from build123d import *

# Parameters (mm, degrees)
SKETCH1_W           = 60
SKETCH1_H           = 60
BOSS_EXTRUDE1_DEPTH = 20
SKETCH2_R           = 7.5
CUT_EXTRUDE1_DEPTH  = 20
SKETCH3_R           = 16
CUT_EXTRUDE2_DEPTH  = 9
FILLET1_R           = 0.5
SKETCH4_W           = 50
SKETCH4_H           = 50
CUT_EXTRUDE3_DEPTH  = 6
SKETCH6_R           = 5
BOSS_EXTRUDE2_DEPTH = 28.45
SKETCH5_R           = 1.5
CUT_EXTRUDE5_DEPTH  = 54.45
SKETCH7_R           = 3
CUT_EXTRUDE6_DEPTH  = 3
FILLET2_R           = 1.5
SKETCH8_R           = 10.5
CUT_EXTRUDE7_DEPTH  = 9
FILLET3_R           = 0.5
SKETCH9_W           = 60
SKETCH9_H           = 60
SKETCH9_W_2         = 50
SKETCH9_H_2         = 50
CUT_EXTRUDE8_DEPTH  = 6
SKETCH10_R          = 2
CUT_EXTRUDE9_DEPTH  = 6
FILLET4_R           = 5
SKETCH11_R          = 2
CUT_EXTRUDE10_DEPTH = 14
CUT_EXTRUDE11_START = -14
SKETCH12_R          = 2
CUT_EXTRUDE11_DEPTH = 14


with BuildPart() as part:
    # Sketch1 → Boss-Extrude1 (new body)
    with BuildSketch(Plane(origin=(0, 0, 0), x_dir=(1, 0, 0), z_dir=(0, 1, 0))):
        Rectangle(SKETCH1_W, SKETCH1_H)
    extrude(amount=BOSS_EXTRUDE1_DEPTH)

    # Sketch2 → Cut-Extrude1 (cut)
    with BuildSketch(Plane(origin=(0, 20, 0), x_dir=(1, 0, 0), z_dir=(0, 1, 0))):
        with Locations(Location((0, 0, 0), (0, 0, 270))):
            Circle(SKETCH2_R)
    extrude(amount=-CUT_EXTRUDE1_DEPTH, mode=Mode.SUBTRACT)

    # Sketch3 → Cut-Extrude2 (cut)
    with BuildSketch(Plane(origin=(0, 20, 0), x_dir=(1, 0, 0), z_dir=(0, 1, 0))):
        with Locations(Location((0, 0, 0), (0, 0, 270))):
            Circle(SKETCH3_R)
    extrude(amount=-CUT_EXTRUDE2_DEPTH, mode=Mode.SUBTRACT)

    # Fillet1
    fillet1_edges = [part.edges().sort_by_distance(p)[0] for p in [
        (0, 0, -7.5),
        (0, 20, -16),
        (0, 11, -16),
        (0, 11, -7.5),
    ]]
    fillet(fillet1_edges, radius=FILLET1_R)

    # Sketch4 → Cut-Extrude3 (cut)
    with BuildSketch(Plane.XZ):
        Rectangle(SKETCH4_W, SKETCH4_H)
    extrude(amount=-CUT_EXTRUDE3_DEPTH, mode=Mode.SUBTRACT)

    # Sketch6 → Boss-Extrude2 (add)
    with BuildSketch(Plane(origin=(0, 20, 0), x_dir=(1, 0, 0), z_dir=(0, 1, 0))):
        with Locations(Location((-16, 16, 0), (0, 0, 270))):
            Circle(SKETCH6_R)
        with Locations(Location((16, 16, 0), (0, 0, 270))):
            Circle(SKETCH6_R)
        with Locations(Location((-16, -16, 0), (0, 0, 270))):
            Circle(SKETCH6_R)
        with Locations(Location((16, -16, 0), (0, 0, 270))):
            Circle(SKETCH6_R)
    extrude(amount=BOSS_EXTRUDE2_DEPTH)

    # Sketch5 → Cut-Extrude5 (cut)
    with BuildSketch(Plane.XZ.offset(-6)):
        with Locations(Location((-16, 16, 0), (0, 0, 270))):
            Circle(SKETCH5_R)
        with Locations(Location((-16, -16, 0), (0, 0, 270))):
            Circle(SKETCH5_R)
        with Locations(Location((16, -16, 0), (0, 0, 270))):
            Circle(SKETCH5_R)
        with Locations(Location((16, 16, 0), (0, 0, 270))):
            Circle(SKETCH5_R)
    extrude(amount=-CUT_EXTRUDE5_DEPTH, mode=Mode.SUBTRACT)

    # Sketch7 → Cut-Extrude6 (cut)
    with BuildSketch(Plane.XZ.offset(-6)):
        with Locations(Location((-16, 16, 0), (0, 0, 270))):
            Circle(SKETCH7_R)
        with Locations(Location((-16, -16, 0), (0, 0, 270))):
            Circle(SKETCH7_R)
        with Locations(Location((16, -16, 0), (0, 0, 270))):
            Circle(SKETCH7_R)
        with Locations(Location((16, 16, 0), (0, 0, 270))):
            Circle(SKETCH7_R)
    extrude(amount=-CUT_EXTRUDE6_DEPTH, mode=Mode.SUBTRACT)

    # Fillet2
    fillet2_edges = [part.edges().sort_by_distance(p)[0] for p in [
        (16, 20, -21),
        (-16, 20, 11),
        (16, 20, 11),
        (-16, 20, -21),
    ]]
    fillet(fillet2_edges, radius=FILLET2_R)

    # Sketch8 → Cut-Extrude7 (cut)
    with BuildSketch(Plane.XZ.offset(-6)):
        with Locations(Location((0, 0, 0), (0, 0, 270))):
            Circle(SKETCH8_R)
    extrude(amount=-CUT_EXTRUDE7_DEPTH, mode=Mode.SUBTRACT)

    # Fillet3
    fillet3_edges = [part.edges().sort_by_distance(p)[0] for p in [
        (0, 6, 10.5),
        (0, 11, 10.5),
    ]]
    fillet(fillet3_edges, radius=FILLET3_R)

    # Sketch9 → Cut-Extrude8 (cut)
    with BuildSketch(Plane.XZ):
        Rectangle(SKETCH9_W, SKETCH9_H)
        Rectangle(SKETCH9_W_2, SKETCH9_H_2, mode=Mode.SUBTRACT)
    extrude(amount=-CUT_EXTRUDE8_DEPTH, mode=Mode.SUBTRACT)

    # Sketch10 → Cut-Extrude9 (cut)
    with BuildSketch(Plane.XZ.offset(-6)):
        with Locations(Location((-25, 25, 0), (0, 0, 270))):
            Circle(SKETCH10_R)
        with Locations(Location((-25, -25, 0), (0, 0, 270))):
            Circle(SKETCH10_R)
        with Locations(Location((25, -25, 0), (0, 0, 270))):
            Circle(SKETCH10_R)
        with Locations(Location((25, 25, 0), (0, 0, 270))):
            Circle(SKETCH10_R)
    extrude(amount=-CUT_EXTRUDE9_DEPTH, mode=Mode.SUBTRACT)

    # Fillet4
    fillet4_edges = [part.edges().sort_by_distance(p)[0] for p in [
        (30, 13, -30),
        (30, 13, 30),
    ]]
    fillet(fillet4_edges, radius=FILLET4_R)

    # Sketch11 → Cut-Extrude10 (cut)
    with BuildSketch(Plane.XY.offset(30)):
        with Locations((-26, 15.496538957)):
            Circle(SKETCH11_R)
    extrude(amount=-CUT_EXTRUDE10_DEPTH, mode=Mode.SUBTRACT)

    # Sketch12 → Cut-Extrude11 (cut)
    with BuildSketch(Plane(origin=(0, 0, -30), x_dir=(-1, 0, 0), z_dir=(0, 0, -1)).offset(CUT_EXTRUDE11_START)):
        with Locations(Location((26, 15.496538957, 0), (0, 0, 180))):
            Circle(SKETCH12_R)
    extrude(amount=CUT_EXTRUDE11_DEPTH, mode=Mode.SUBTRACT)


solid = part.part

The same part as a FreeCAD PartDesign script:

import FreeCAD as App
import Part
import Sketcher


def edges_at(feature, points):
    """Names of the edges that pass closest to the given points."""
    edges = feature.Shape.Edges
    near = lambda p: min(range(len(edges)), key=lambda i: edges[i].distToShape(Part.Vertex(*p))[0])
    return sorted({f"Edge{near(p) + 1}" for p in points})


def add_polygon(sketch, points):
    """Adds a closed chain of lines whose ends are joined by coincident constraints."""
    first, n = sketch.GeometryCount, len(points)
    for a, b in zip(points, points[1:] + points[:1]):
        sketch.addGeometry(Part.LineSegment(App.Vector(*a, 0), App.Vector(*b, 0)), False)
    for i in range(n):
        sketch.addConstraint(Sketcher.Constraint("Coincident", first + i, 2, first + (i + 1) % n, 1))

doc = App.newDocument("Part")
params = doc.addObject("Spreadsheet::Sheet", "Params")
for row, (alias, value) in enumerate([
    ("sketch1_width", "60 mm"),
    ("pad1_length", "20 mm"),
    ("sketch2_diameter", "15 mm"),
    ("pocket1_length", "20 mm"),
    ("sketch3_diameter", "32 mm"),
    ("pocket2_length", "9 mm"),
    ("fillet_radius", "0.5 mm"),
    ("sketch4_width", "50 mm"),
    ("pocket3_length", "6 mm"),
    ("sketch5_diameter", "10 mm"),
    ("pad2_length", "28.45 mm"),
    ("sketch6_diameter", "3 mm"),
    ("pocket4_length", "54.45 mm"),
    ("sketch7_diameter", "6 mm"),
    ("pocket5_length", "3 mm"),
    ("fillet2_radius", "1.5 mm"),
    ("sketch8_diameter", "21 mm"),
    ("pocket6_length", "9 mm"),
    ("fillet3_radius", "0.5 mm"),
    ("sketch9_width", "60 mm"),
    ("sketch9_width2", "50 mm"),
    ("pocket7_length", "6 mm"),
    ("sketch10_diameter", "4 mm"),
    ("pocket8_length", "6 mm"),
    ("fillet4_radius", "5 mm"),
    ("sketch11_diameter", "4 mm"),
    ("pocket9_length", "14 mm"),
    ("sketch12_diameter", "4 mm"),
    ("pocket10_length", "14 mm"),
], start=1):
    params.set(f"A{row}", alias)
    params.set(f"B{row}", "=" + value)
    params.setAlias(f"B{row}", alias)

body = doc.addObject("PartDesign::Body", "Body")

# Sketch on XZ plane
sketch1 = doc.addObject("Sketcher::SketchObject", "Sketch")
body.addObject(sketch1)
sketch1.AttachmentSupport = (doc.XZ_Plane, [""])
sketch1.MapMode = "FlatFace"
add_polygon(sketch1, [(-30, -30), (-30, 30), (30, 30), (30, -30)])  # lines 0-3
sketch1.addConstraint([
    Sketcher.Constraint("Vertical", 0),
    Sketcher.Constraint("Horizontal", 1),
    Sketcher.Constraint("Vertical", 2),
    Sketcher.Constraint("Horizontal", 3),
    Sketcher.Constraint("Symmetric", 0, 2, 2, 2, -1, 1),
    Sketcher.Constraint("Equal", 3, 0),
    Sketcher.Constraint("DistanceX", 1, 1, 1, 2, 60.0),
])
sketch1.setExpression("Constraints[10]", "Params.sketch1_width")
pad1 = doc.addObject("PartDesign::Pad", "Pad")
body.addObject(pad1)
pad1.Profile = sketch1
pad1.setExpression("Length", "Params.pad1_length")
pad1.Reversed = True

# Sketch on XZ plane
sketch2 = doc.addObject("Sketcher::SketchObject", "Sketch001")
body.addObject(sketch2)
sketch2.AttachmentSupport = (doc.XZ_Plane, [""])
sketch2.MapMode = "FlatFace"
sketch2.AttachmentOffset = App.Placement(App.Vector(0, 0, -20), App.Rotation())
sketch2.addGeometry(Part.Circle(App.Vector(0, 0, 0), App.Vector(0, 0, 1), 7.5), False)
sketch2.addConstraint([
    Sketcher.Constraint("Coincident", 0, 3, -1, 1),
    Sketcher.Constraint("Diameter", 0, 15.0),
])
sketch2.setExpression("Constraints[1]", "Params.sketch2_diameter")
pocket1 = doc.addObject("PartDesign::Pocket", "Pocket")
body.addObject(pocket1)
pocket1.Profile = sketch2
pocket1.setExpression("Length", "Params.pocket1_length")
pocket1.Reversed = True

# Sketch on XZ plane
sketch3 = doc.addObject("Sketcher::SketchObject", "Sketch002")
body.addObject(sketch3)
sketch3.AttachmentSupport = (doc.XZ_Plane, [""])
sketch3.MapMode = "FlatFace"
sketch3.AttachmentOffset = App.Placement(App.Vector(0, 0, -20), App.Rotation())
sketch3.addGeometry(Part.Circle(App.Vector(0, 0, 0), App.Vector(0, 0, 1), 16), False)
sketch3.addConstraint([
    Sketcher.Constraint("Coincident", 0, 3, -1, 1),
    Sketcher.Constraint("Diameter", 0, 32.0),
])
sketch3.setExpression("Constraints[1]", "Params.sketch3_diameter")
pocket2 = doc.addObject("PartDesign::Pocket", "Pocket001")
body.addObject(pocket2)
pocket2.Profile = sketch3
pocket2.setExpression("Length", "Params.pocket2_length")
pocket2.Reversed = True
doc.recompute()

fillet = doc.addObject("PartDesign::Fillet", "Fillet")
body.addObject(fillet)
fillet.Base = (pocket2, edges_at(pocket2, [
    (0, 0, -7.5),
    (0, 20, -16),
    (0, 11, -16),
    (0, 11, -7.5),
]))
fillet.setExpression("Radius", "Params.fillet_radius")

# Sketch on XZ plane
sketch4 = doc.addObject("Sketcher::SketchObject", "Sketch003")
body.addObject(sketch4)
sketch4.AttachmentSupport = (doc.XZ_Plane, [""])
sketch4.MapMode = "FlatFace"
add_polygon(sketch4, [(-25, 25), (-25, -25), (25, -25), (25, 25)])  # lines 0-3
sketch4.addConstraint([
    Sketcher.Constraint("Vertical", 0),
    Sketcher.Constraint("Horizontal", 1),
    Sketcher.Constraint("Vertical", 2),
    Sketcher.Constraint("Horizontal", 3),
    Sketcher.Constraint("Symmetric", 0, 2, 2, 2, -1, 1),
    Sketcher.Constraint("Equal", 3, 0),
    Sketcher.Constraint("DistanceX", 1, 1, 1, 2, 50.0),
])
sketch4.setExpression("Constraints[10]", "Params.sketch4_width")
pocket3 = doc.addObject("PartDesign::Pocket", "Pocket002")
body.addObject(pocket3)
pocket3.Profile = sketch4
pocket3.setExpression("Length", "Params.pocket3_length")

# Sketch on XZ plane
sketch5 = doc.addObject("Sketcher::SketchObject", "Sketch004")
body.addObject(sketch5)
sketch5.AttachmentSupport = (doc.XZ_Plane, [""])
sketch5.MapMode = "FlatFace"
sketch5.AttachmentOffset = App.Placement(App.Vector(0, 0, -20), App.Rotation())
sketch5.addGeometry([
    Part.Circle(App.Vector(-16, -16, 0), App.Vector(0, 0, 1), 5),
    Part.Circle(App.Vector(16, -16, 0), App.Vector(0, 0, 1), 5),
    Part.Circle(App.Vector(-16, 16, 0), App.Vector(0, 0, 1), 5),
    Part.Circle(App.Vector(16, 16, 0), App.Vector(0, 0, 1), 5),
], False)
sketch5.addConstraint([
    Sketcher.Constraint("Equal", 0, 1),
    Sketcher.Constraint("Equal", 1, 2),
    Sketcher.Constraint("Equal", 2, 3),
    Sketcher.Constraint("Symmetric", 1, 3, 2, 3, -1, 1),
    Sketcher.Constraint("Symmetric", 0, 3, 3, 3, -1, 1),
    Sketcher.Constraint("Symmetric", 0, 3, 1, 3, -2),
    Sketcher.Constraint("Diameter", 0, 10.0),
    Sketcher.Constraint("DistanceX", 0, 3, -1, 1, 16.0),
    Sketcher.Constraint("DistanceY", 0, 3, -1, 1, 16.0),
])
sketch5.setExpression("Constraints[6]", "Params.sketch5_diameter")
pad2 = doc.addObject("PartDesign::Pad", "Pad001")
body.addObject(pad2)
pad2.Profile = sketch5
pad2.setExpression("Length", "Params.pad2_length")
pad2.Reversed = True

# Sketch on XZ plane
sketch6 = doc.addObject("Sketcher::SketchObject", "Sketch005")
body.addObject(sketch6)
sketch6.AttachmentSupport = (doc.XZ_Plane, [""])
sketch6.MapMode = "FlatFace"
sketch6.AttachmentOffset = App.Placement(App.Vector(0, 0, -6), App.Rotation())
sketch6.addGeometry([
    Part.Circle(App.Vector(-16, 16, 0), App.Vector(0, 0, 1), 1.5),
    Part.Circle(App.Vector(-16, -16, 0), App.Vector(0, 0, 1), 1.5),
    Part.Circle(App.Vector(16, -16, 0), App.Vector(0, 0, 1), 1.5),
    Part.Circle(App.Vector(16, 16, 0), App.Vector(0, 0, 1), 1.5),
], False)
sketch6.addConstraint([
    Sketcher.Constraint("Equal", 0, 1),
    Sketcher.Constraint("Equal", 1, 2),
    Sketcher.Constraint("Equal", 2, 3),
    Sketcher.Constraint("Symmetric", 0, 3, 2, 3, -1, 1),
    Sketcher.Constraint("Symmetric", 1, 3, 3, 3, -1, 1),
    Sketcher.Constraint("Symmetric", 1, 3, 2, 3, -2),
    Sketcher.Constraint("Diameter", 0, 3.0),
    Sketcher.Constraint("DistanceX", 0, 3, -1, 1, 16.0),
    Sketcher.Constraint("DistanceY", -1, 1, 0, 3, 16.0),
])
sketch6.setExpression("Constraints[6]", "Params.sketch6_diameter")
pocket4 = doc.addObject("PartDesign::Pocket", "Pocket003")
body.addObject(pocket4)
pocket4.Profile = sketch6
pocket4.setExpression("Length", "Params.pocket4_length")

# Sketch on XZ plane
sketch7 = doc.addObject("Sketcher::SketchObject", "Sketch006")
body.addObject(sketch7)
sketch7.AttachmentSupport = (doc.XZ_Plane, [""])
sketch7.MapMode = "FlatFace"
sketch7.AttachmentOffset = App.Placement(App.Vector(0, 0, -6), App.Rotation())
sketch7.addGeometry([
    Part.Circle(App.Vector(-16, 16, 0), App.Vector(0, 0, 1), 3),
    Part.Circle(App.Vector(-16, -16, 0), App.Vector(0, 0, 1), 3),
    Part.Circle(App.Vector(16, -16, 0), App.Vector(0, 0, 1), 3),
    Part.Circle(App.Vector(16, 16, 0), App.Vector(0, 0, 1), 3),
], False)
sketch7.addConstraint([
    Sketcher.Constraint("Equal", 0, 1),
    Sketcher.Constraint("Equal", 1, 2),
    Sketcher.Constraint("Equal", 2, 3),
    Sketcher.Constraint("Symmetric", 0, 3, 2, 3, -1, 1),
    Sketcher.Constraint("Symmetric", 1, 3, 3, 3, -1, 1),
    Sketcher.Constraint("Symmetric", 1, 3, 2, 3, -2),
    Sketcher.Constraint("Diameter", 0, 6.0),
    Sketcher.Constraint("DistanceX", 0, 3, -1, 1, 16.0),
    Sketcher.Constraint("DistanceY", -1, 1, 0, 3, 16.0),
])
sketch7.setExpression("Constraints[6]", "Params.sketch7_diameter")
pocket5 = doc.addObject("PartDesign::Pocket", "Pocket004")
body.addObject(pocket5)
pocket5.Profile = sketch7
pocket5.setExpression("Length", "Params.pocket5_length")
doc.recompute()

fillet2 = doc.addObject("PartDesign::Fillet", "Fillet001")
body.addObject(fillet2)
fillet2.Base = (pocket5, edges_at(pocket5, [
    (16, 20, -21),
    (-16, 20, 11),
    (16, 20, 11),
    (-16, 20, -21),
]))
fillet2.setExpression("Radius", "Params.fillet2_radius")

# Sketch on XZ plane
sketch8 = doc.addObject("Sketcher::SketchObject", "Sketch007")
body.addObject(sketch8)
sketch8.AttachmentSupport = (doc.XZ_Plane, [""])
sketch8.MapMode = "FlatFace"
sketch8.AttachmentOffset = App.Placement(App.Vector(0, 0, -6), App.Rotation())
sketch8.addGeometry(Part.Circle(App.Vector(0, 0, 0), App.Vector(0, 0, 1), 10.5), False)
sketch8.addConstraint([
    Sketcher.Constraint("Coincident", 0, 3, -1, 1),
    Sketcher.Constraint("Diameter", 0, 21.0),
])
sketch8.setExpression("Constraints[1]", "Params.sketch8_diameter")
pocket6 = doc.addObject("PartDesign::Pocket", "Pocket005")
body.addObject(pocket6)
pocket6.Profile = sketch8
pocket6.setExpression("Length", "Params.pocket6_length")
doc.recompute()

fillet3 = doc.addObject("PartDesign::Fillet", "Fillet002")
body.addObject(fillet3)
fillet3.Base = (pocket6, edges_at(pocket6, [(0, 6, 10.5), (0, 11, 10.5)]))
fillet3.setExpression("Radius", "Params.fillet3_radius")

# Sketch on XZ plane
sketch9 = doc.addObject("Sketcher::SketchObject", "Sketch008")
body.addObject(sketch9)
sketch9.AttachmentSupport = (doc.XZ_Plane, [""])
sketch9.MapMode = "FlatFace"
add_polygon(sketch9, [(-30, 30), (-30, -30), (30, -30), (30, 30)])  # lines 0-3
add_polygon(sketch9, [(25, -25), (-25, -25), (-25, 25), (25, 25)])  # lines 4-7
sketch9.addConstraint([
    Sketcher.Constraint("Vertical", 0),
    Sketcher.Constraint("Horizontal", 1),
    Sketcher.Constraint("Vertical", 2),
    Sketcher.Constraint("Horizontal", 3),
    Sketcher.Constraint("Horizontal", 4),
    Sketcher.Constraint("Vertical", 5),
    Sketcher.Constraint("Horizontal", 6),
    Sketcher.Constraint("Vertical", 7),
    Sketcher.Constraint("Symmetric", 0, 2, 2, 2, -1, 1),
    Sketcher.Constraint("Symmetric", 4, 2, 6, 2, -1, 1),
    Sketcher.Constraint("Equal", 3, 0),
    Sketcher.Constraint("Equal", 6, 5),
    Sketcher.Constraint("DistanceX", 1, 1, 1, 2, 60.0),
    Sketcher.Constraint("DistanceX", 4, 2, 4, 1, 50.0),
])
sketch9.setExpression("Constraints[20]", "Params.sketch9_width")
sketch9.setExpression("Constraints[21]", "Params.sketch9_width2")
pocket7 = doc.addObject("PartDesign::Pocket", "Pocket006")
body.addObject(pocket7)
pocket7.Profile = sketch9
pocket7.setExpression("Length", "Params.pocket7_length")

# Sketch on XZ plane
sketch10 = doc.addObject("Sketcher::SketchObject", "Sketch009")
body.addObject(sketch10)
sketch10.AttachmentSupport = (doc.XZ_Plane, [""])
sketch10.MapMode = "FlatFace"
sketch10.AttachmentOffset = App.Placement(App.Vector(0, 0, -6), App.Rotation())
sketch10.addGeometry([
    Part.Circle(App.Vector(-25, 25, 0), App.Vector(0, 0, 1), 2),
    Part.Circle(App.Vector(-25, -25, 0), App.Vector(0, 0, 1), 2),
    Part.Circle(App.Vector(25, -25, 0), App.Vector(0, 0, 1), 2),
    Part.Circle(App.Vector(25, 25, 0), App.Vector(0, 0, 1), 2),
], False)
sketch10.addConstraint([
    Sketcher.Constraint("Equal", 0, 1),
    Sketcher.Constraint("Equal", 1, 2),
    Sketcher.Constraint("Equal", 2, 3),
    Sketcher.Constraint("Symmetric", 0, 3, 2, 3, -1, 1),
    Sketcher.Constraint("Symmetric", 1, 3, 3, 3, -1, 1),
    Sketcher.Constraint("Symmetric", 1, 3, 2, 3, -2),
    Sketcher.Constraint("Diameter", 0, 4.0),
    Sketcher.Constraint("DistanceX", 0, 3, -1, 1, 25.0),
    Sketcher.Constraint("DistanceY", -1, 1, 0, 3, 25.0),
])
sketch10.setExpression("Constraints[6]", "Params.sketch10_diameter")
pocket8 = doc.addObject("PartDesign::Pocket", "Pocket007")
body.addObject(pocket8)
pocket8.Profile = sketch10
pocket8.setExpression("Length", "Params.pocket8_length")
doc.recompute()

fillet4 = doc.addObject("PartDesign::Fillet", "Fillet003")
body.addObject(fillet4)
fillet4.Base = (pocket8, edges_at(pocket8, [(30, 13, -30), (30, 13, 30)]))
fillet4.setExpression("Radius", "Params.fillet4_radius")

# Sketch on XY plane
sketch11 = doc.addObject("Sketcher::SketchObject", "Sketch010")
body.addObject(sketch11)
sketch11.AttachmentSupport = (doc.XY_Plane, [""])
sketch11.MapMode = "FlatFace"
sketch11.AttachmentOffset = App.Placement(App.Vector(0, 0, 30), App.Rotation())
sketch11.addGeometry(Part.Circle(App.Vector(-26, 15.496539, 0), App.Vector(0, 0, 1), 2), False)
sketch11.addConstraint([
    Sketcher.Constraint("Diameter", 0, 4.0),
    Sketcher.Constraint("DistanceX", 0, 3, -1, 1, 26.0),
    Sketcher.Constraint("DistanceY", -1, 1, 0, 3, 15.496539),
])
sketch11.setExpression("Constraints[0]", "Params.sketch11_diameter")
pocket9 = doc.addObject("PartDesign::Pocket", "Pocket008")
body.addObject(pocket9)
pocket9.Profile = sketch11
pocket9.setExpression("Length", "Params.pocket9_length")

# Sketch on XY plane
sketch12 = doc.addObject("Sketcher::SketchObject", "Sketch011")
body.addObject(sketch12)
sketch12.AttachmentSupport = (doc.XY_Plane, [""])
sketch12.MapMode = "FlatFace"
sketch12.AttachmentOffset = App.Placement(App.Vector(0, 0, -16), App.Rotation())
sketch12.addGeometry(Part.Circle(App.Vector(-26, 15.496539, 0), App.Vector(0, 0, 1), 2), False)
sketch12.addConstraint([
    Sketcher.Constraint("Diameter", 0, 4.0),
    Sketcher.Constraint("DistanceX", 0, 3, -1, 1, 26.0),
    Sketcher.Constraint("DistanceY", -1, 1, 0, 3, 15.496539),
])
sketch12.setExpression("Constraints[0]", "Params.sketch12_diameter")
pocket10 = doc.addObject("PartDesign::Pocket", "Pocket009")
body.addObject(pocket10)
pocket10.Profile = sketch12
pocket10.setExpression("Length", "Params.pocket10_length")

doc.recompute()
